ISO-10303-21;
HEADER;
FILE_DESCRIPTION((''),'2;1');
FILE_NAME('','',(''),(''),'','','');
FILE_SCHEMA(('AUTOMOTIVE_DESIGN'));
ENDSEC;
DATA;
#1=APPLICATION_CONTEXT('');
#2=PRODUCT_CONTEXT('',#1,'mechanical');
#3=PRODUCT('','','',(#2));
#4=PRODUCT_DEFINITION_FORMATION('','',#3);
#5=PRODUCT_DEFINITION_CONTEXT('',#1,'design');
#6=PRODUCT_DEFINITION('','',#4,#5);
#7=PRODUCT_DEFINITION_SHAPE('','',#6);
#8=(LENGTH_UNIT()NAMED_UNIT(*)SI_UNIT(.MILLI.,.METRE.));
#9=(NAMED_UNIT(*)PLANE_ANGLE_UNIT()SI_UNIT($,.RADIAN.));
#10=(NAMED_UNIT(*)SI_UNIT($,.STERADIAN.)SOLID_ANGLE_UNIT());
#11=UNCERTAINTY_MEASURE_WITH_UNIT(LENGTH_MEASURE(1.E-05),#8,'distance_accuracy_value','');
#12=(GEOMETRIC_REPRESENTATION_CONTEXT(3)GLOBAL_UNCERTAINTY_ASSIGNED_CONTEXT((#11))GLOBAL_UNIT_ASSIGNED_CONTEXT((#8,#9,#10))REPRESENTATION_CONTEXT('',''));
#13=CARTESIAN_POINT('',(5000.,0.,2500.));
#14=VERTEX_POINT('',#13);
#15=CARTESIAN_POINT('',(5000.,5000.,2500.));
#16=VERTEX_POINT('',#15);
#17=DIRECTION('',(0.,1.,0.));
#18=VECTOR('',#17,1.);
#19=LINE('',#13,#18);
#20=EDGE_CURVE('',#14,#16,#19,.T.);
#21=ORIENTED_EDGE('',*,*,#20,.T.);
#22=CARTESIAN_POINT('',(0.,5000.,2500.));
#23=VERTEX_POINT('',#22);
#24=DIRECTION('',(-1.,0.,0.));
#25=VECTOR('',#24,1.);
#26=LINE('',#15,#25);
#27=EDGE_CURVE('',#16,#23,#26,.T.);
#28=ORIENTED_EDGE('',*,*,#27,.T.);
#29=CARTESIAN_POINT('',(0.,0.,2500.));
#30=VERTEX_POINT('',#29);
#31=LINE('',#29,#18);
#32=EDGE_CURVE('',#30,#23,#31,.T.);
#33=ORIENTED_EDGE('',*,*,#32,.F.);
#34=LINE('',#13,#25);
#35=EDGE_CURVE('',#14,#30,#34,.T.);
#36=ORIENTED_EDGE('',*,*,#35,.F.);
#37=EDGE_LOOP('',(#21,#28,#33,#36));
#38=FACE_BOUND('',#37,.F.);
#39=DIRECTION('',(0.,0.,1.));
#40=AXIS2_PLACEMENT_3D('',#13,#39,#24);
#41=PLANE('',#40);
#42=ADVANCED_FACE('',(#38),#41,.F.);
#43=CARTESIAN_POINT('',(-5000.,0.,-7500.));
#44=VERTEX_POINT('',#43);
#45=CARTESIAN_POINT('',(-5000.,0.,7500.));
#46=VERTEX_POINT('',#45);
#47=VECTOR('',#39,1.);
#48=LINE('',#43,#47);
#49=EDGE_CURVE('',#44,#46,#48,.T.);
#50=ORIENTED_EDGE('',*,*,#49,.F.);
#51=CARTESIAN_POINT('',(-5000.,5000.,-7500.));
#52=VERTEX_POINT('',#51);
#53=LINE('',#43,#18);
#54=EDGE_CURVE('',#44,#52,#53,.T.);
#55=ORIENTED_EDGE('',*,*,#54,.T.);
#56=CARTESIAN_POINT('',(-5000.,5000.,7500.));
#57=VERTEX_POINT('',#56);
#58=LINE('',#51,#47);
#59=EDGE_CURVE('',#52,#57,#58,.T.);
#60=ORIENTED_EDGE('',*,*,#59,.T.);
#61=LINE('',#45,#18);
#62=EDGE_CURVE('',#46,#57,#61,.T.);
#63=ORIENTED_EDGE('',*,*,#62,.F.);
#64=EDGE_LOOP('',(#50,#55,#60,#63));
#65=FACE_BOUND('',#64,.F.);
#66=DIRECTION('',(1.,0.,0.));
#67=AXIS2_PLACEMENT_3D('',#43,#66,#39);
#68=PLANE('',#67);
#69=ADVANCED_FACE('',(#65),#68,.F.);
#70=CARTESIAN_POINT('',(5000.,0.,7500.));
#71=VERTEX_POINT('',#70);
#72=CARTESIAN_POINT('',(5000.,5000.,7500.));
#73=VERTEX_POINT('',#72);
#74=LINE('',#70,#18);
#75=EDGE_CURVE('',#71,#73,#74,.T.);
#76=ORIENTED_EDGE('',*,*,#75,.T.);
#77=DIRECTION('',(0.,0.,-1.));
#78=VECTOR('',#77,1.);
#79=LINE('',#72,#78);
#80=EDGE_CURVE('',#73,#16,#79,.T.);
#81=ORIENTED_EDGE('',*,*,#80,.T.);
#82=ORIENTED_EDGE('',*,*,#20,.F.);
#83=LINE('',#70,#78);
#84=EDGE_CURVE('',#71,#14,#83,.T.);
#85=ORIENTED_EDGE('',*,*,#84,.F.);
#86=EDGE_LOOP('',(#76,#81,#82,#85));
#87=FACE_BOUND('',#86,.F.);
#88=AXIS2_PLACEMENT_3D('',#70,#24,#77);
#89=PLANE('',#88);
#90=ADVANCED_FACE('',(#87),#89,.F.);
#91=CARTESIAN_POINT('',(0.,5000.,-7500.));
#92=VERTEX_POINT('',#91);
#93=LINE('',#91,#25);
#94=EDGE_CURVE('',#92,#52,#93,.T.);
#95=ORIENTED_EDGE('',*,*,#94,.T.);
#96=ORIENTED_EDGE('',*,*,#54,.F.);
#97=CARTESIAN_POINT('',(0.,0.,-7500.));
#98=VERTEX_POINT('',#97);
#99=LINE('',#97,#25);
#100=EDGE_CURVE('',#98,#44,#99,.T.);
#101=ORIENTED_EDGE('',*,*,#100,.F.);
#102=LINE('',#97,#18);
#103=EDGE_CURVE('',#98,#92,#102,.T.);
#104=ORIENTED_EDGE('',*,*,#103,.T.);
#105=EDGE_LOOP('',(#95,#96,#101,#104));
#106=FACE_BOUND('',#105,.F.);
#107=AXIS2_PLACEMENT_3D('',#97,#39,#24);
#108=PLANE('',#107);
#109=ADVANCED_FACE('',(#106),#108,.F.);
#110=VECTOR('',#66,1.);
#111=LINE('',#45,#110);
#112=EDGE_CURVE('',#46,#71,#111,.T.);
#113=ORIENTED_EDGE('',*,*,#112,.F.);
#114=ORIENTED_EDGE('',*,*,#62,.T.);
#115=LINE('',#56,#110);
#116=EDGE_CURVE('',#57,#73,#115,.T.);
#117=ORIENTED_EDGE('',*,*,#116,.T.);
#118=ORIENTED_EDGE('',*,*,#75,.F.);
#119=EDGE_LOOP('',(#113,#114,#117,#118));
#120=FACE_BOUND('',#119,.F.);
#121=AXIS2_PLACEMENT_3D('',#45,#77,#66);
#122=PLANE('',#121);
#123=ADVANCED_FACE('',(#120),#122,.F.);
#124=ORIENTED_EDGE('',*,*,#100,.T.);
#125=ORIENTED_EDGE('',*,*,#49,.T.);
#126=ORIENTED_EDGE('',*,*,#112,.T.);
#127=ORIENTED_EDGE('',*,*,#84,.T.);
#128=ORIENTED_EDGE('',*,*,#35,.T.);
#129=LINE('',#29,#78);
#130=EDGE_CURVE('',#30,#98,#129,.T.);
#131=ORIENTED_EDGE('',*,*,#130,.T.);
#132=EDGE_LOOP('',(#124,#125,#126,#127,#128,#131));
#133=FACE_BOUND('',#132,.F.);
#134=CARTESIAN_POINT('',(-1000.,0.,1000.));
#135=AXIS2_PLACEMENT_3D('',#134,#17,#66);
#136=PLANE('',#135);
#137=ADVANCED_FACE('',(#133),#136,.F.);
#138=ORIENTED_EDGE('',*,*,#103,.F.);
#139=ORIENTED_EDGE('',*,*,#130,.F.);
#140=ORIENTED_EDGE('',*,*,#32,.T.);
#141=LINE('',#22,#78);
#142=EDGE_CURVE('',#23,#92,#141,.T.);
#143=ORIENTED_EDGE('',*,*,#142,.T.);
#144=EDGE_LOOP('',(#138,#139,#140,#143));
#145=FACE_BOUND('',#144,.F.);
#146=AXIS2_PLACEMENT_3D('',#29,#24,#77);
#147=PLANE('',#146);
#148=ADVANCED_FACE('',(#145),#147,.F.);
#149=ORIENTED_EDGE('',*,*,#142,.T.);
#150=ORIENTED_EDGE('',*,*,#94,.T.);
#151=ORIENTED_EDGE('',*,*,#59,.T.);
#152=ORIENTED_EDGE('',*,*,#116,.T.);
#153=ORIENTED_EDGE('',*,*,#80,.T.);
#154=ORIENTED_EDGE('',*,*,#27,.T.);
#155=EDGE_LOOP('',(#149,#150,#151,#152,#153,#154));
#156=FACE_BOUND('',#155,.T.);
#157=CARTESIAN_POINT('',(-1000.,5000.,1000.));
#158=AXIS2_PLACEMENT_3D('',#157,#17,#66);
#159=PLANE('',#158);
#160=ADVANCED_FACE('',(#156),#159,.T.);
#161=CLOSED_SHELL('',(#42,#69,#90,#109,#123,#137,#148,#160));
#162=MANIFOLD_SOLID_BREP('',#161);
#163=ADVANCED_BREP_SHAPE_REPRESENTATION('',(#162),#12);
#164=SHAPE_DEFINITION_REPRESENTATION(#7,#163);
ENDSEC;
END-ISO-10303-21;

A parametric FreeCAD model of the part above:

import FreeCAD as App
import Part
import Sketcher
Q = App.Units.Quantity


def add_polygon(sketch, points):
    """Adds a closed chain of lines whose ends are joined by coincident constraints."""
    first, n = sketch.GeometryCount, len(points)
    for a, b in zip(points, points[1:] + points[:1]):
        sketch.addGeometry(Part.LineSegment(App.Vector(*a, 0), App.Vector(*b, 0)), False)
    for i in range(n):
        sketch.addConstraint(Sketcher.Constraint("Coincident", first + i, 2, first + (i + 1) % n, 1))

doc = App.newDocument("Part")
params = doc.addObject("Spreadsheet::Sheet", "Params")
for row, (alias, value) in enumerate([
    ("sketch1_width", "10000 mm"),
    ("pad1_length", "5000 mm"),
], start=1):
    params.set(f"A{row}", alias)
    params.set(f"B{row}", "=" + value)
    params.setAlias(f"B{row}", alias)

body = doc.addObject("PartDesign::Body", "Body")

sketch1 = body.newObject("Sketcher::SketchObject", "Sketch")
sketch1.AttachmentSupport = (doc.getObject("XZ_Plane"), [""])
sketch1.MapMode = "FlatFace"
add_polygon(sketch1, [(-5000, -7500), (-5000, 7500), (5000, 7500), (5000, 2500), (0, 2500), (0, -7500)])
sketch1.addConstraint([
    Sketcher.Constraint("Vertical", 0),
    Sketcher.Constraint("Horizontal", 1),
    Sketcher.Constraint("Vertical", 2),
    Sketcher.Constraint("Horizontal", 3),
    Sketcher.Constraint("Vertical", 4),
    Sketcher.Constraint("Horizontal", 5),
    Sketcher.Constraint("Symmetric", 1, 2, 5, 2, -1, 1),
    Sketcher.Constraint("PointOnObject", 3, 2, -2),
    Sketcher.Constraint("Equal", 5, 2),
    Sketcher.Constraint("Equal", 1, 4),
    Sketcher.Constraint("DistanceX", 1, 1, 1, 2, Q("10000 mm")),
])
sketch1.setExpression("Constraints[16]", "Params.sketch1_width")
pad1 = body.newObject("PartDesign::Pad", "Pad")
pad1.Profile = sketch1
pad1.setExpression("Length", "Params.pad1_length")
pad1.Reversed = True

doc.recompute()
